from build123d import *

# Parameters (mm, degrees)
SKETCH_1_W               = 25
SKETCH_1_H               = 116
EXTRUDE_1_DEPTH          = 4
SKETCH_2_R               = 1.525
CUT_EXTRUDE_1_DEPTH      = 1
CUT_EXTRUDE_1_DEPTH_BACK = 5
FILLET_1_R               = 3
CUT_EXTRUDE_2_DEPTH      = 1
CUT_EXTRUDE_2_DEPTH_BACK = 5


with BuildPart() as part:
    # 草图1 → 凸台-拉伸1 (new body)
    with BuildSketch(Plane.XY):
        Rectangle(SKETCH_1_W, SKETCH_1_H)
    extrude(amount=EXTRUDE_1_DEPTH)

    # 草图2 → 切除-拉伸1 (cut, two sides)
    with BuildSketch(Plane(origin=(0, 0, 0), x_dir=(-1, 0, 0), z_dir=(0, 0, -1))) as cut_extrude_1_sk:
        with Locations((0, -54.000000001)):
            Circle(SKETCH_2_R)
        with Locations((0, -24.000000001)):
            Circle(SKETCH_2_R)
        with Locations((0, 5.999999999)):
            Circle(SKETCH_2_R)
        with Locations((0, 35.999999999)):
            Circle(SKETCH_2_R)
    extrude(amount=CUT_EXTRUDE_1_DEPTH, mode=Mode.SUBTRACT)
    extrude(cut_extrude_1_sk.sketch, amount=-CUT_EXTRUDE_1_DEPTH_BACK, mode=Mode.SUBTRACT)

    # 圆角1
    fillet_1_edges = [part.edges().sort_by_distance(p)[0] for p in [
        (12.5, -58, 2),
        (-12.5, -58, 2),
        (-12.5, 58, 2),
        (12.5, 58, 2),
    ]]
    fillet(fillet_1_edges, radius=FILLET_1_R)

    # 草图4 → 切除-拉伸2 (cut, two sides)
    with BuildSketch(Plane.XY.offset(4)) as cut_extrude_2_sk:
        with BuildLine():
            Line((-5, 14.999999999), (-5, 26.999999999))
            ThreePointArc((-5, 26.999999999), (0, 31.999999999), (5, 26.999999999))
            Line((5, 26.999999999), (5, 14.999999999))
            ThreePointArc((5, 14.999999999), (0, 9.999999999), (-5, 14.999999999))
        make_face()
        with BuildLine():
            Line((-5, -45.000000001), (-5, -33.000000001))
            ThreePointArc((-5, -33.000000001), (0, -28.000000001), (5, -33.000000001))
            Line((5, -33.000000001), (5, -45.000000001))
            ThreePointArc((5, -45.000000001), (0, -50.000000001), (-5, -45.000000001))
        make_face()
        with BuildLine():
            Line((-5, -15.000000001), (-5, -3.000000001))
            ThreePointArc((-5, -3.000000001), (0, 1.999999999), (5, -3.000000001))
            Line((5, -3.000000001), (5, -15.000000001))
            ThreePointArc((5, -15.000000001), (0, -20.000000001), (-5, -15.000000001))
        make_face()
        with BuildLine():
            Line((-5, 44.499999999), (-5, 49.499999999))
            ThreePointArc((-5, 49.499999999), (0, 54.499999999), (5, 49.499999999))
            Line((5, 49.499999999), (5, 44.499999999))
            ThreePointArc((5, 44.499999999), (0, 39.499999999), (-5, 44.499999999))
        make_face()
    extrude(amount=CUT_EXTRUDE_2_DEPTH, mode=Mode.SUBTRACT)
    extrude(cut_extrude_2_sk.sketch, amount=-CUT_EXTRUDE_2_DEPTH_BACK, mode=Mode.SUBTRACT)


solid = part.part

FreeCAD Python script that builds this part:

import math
import FreeCAD as App
import Part
import Sketcher
from FreeCAD import Vector


def edges_at(feature, points):
    """Names of the edges that pass closest to the given points."""
    edges = feature.Shape.Edges
    near = lambda p: min(range(len(edges)), key=lambda i: edges[i].distToShape(Part.Vertex(*p))[0])
    return sorted({f"Edge{near(p) + 1}" for p in points})

doc = App.newDocument("Part")
params = doc.addObject("Spreadsheet::Sheet", "Params")
for row, (alias, value) in enumerate([
    ("sketch1_width", "25 mm"),
    ("sketch1_height", "116 mm"),
    ("pad1_length", "4 mm"),
    ("sketch2_diameter", "3.05 mm"),
    ("fillet_radius", "3 mm"),
    ("sketch3_radius", "5 mm"),
    ("sketch3_height", "12 mm"),
    ("sketch3_height2", "5 mm"),
], start=1):
    params.set(f"A{row}", alias)
    params.set(f"B{row}", "=" + value)
    params.setAlias(f"B{row}", alias)

body = doc.addObject("PartDesign::Body", "Body")

# Sketch on XY plane
sketch1 = doc.addObject("Sketcher::SketchObject", "Sketch")
body.addObject(sketch1)
sketch1.AttachmentSupport = (doc.XY_Plane, [""])
sketch1.MapMode = "FlatFace"
sketch1.addGeometry([
    Part.LineSegment(Vector(-12, 58, 0), Vector(-12, -58, 0)),
    Part.LineSegment(Vector(-12, -58, 0), Vector(12, -58, 0)),
    Part.LineSegment(Vector(12, -58, 0), Vector(12, 58, 0)),
    Part.LineSegment(Vector(12, 58, 0), Vector(-12, 58, 0)),
], False)
sketch1.addConstraint([
    Sketcher.Constraint("Coincident", 0, 2, 1, 1),
    Sketcher.Constraint("Coincident", 1, 2, 2, 1),
    Sketcher.Constraint("Coincident", 2, 2, 3, 1),
    Sketcher.Constraint("Coincident", 3, 2, 0, 1),
    Sketcher.Constraint("Vertical", 0),
    Sketcher.Constraint("Horizontal", 1),
    Sketcher.Constraint("Vertical", 2),
    Sketcher.Constraint("Horizontal", 3),
    Sketcher.Constraint("Symmetric", 0, 2, 2, 2, -1, 1),
    Sketcher.Constraint("DistanceX", 1, 1, 1, 2, 25.0),
    Sketcher.Constraint("DistanceY", 0, 2, 0, 1, 116.0),
])
sketch1.setExpression("Constraints[9]", "Params.sketch1_width")
sketch1.setExpression("Constraints[10]", "Params.sketch1_height")
pad1 = doc.addObject("PartDesign::Pad", "Pad")
body.addObject(pad1)
pad1.Profile = sketch1
pad1.setExpression("Length", "Params.pad1_length")

# Sketch on XY plane
sketch2 = doc.addObject("Sketcher::SketchObject", "Sketch001")
body.addObject(sketch2)
sketch2.AttachmentSupport = (doc.XY_Plane, [""])
sketch2.MapMode = "FlatFace"
sketch2.addGeometry([
    Part.Circle(Vector(0, -54, 0), Vector(0, 0, 1), 1.5),
    Part.Circle(Vector(0, -24, 0), Vector(0, 0, 1), 1.5),
    Part.Circle(Vector(0, 6, 0), Vector(0, 0, 1), 1.5),
    Part.Circle(Vector(0, 36, 0), Vector(0, 0, 1), 1.5),
], False)
sketch2.addConstraint([
    Sketcher.Constraint("Equal", 0, 1),
    Sketcher.Constraint("Equal", 1, 2),
    Sketcher.Constraint("Equal", 2, 3),
    Sketcher.Constraint("PointOnObject", 0, 3, -2),
    Sketcher.Constraint("PointOnObject", 1, 3, -2),
    Sketcher.Constraint("PointOnObject", 2, 3, -2),
    Sketcher.Constraint("PointOnObject", 3, 3, -2),
    Sketcher.Constraint("Diameter", 0, 3.05),
    Sketcher.Constraint("DistanceY", 0, 3, -1, 1, 54.0),
    Sketcher.Constraint("DistanceY", 1, 3, -1, 1, 24.0),
    Sketcher.Constraint("DistanceY", -1, 1, 2, 3, 6.0),
    Sketcher.Constraint("DistanceY", -1, 1, 3, 3, 36.0),
])
sketch2.setExpression("Constraints[7]", "Params.sketch2_diameter")
pocket1 = doc.addObject("PartDesign::Pocket", "Pocket")
body.addObject(pocket1)
pocket1.Profile = sketch2
pocket1.Type = "ThroughAll"
pocket1.Midplane = True
doc.recompute()

fillet = doc.addObject("PartDesign::Fillet", "Fillet")
body.addObject(fillet)
fillet.Base = (pocket1, edges_at(pocket1, [
    (12.5, -58, 2),
    (-12.5, -58, 2),
    (-12.5, 58, 2),
    (12.5, 58, 2),
]))
fillet.setExpression("Radius", "Params.fillet_radius")

# Sketch on XY plane
sketch3 = doc.addObject("Sketcher::SketchObject", "Sketch002")
body.addObject(sketch3)
sketch3.AttachmentSupport = (doc.XY_Plane, [""])
sketch3.MapMode = "FlatFace"
sketch3.AttachmentOffset = App.Placement(Vector(0, 0, 4), App.Rotation())
sketch3.addGeometry([
    Part.LineSegment(Vector(-5, 27, 0), Vector(-5, 15, 0)),  # 0
    Part.ArcOfCircle(Part.Circle(Vector(0, 15, 0), Vector(0, 0, 1), 5), math.radians(180), math.radians(360)),  # 1
    Part.LineSegment(Vector(5, 15, 0), Vector(5, 27, 0)),  # 2
    Part.ArcOfCircle(Part.Circle(Vector(0, 27, 0), Vector(0, 0, 1), 5), math.radians(0), math.radians(180)),  # 3
    Part.LineSegment(Vector(-5, -33, 0), Vector(-5, -45, 0)),  # 4
    Part.ArcOfCircle(Part.Circle(Vector(0, -45, 0), Vector(0, 0, 1), 5), math.radians(180), math.radians(360)),  # 5
    Part.LineSegment(Vector(5, -45, 0), Vector(5, -33, 0)),  # 6
    Part.ArcOfCircle(Part.Circle(Vector(0, -33, 0), Vector(0, 0, 1), 5), math.radians(0), math.radians(180)),  # 7
    Part.LineSegment(Vector(-5, -3, 0), Vector(-5, -15, 0)),  # 8
    Part.ArcOfCircle(Part.Circle(Vector(0, -15, 0), Vector(0, 0, 1), 5), math.radians(180), math.radians(360)),  # 9
    Part.LineSegment(Vector(5, -15, 0), Vector(5, -3, 0)),  # 10
    Part.ArcOfCircle(Part.Circle(Vector(0, -3, 0), Vector(0, 0, 1), 5), math.radians(0), math.radians(180)),  # 11
    Part.LineSegment(Vector(-5, 49, 0), Vector(-5, 44, 0)),  # 12
    Part.ArcOfCircle(Part.Circle(Vector(0, 44, 0), Vector(0, 0, 1), 5), math.radians(180), math.radians(360)),  # 13
    Part.LineSegment(Vector(5, 44, 0), Vector(5, 49, 0)),  # 14
    Part.ArcOfCircle(Part.Circle(Vector(0, 49, 0), Vector(0, 0, 1), 5), math.radians(0), math.radians(180)),  # 15
], False)
sketch3.addConstraint([
    Sketcher.Constraint("Tangent", 0, 2, 1, 1),
    Sketcher.Constraint("Tangent", 1, 2, 2, 1),
    Sketcher.Constraint("Tangent", 2, 2, 3, 1),
    Sketcher.Constraint("Tangent", 3, 2, 0, 1),
    Sketcher.Constraint("Tangent", 4, 2, 5, 1),
    Sketcher.Constraint("Tangent", 5, 2, 6, 1),
    Sketcher.Constraint("Tangent", 6, 2, 7, 1),
    Sketcher.Constraint("Tangent", 7, 2, 4, 1),
    Sketcher.Constraint("Tangent", 8, 2, 9, 1),
    Sketcher.Constraint("Tangent", 9, 2, 10, 1),
    Sketcher.Constraint("Tangent", 10, 2, 11, 1),
    Sketcher.Constraint("Tangent", 11, 2, 8, 1),
    Sketcher.Constraint("Tangent", 12, 2, 13, 1),
    Sketcher.Constraint("Tangent", 13, 2, 14, 1),
    Sketcher.Constraint("Tangent", 14, 2, 15, 1),
    Sketcher.Constraint("Tangent", 15, 2, 12, 1),
    Sketcher.Constraint("Vertical", 0),
    Sketcher.Constraint("Vertical", 2),
    Sketcher.Constraint("Vertical", 4),
    Sketcher.Constraint("Vertical", 6),
    Sketcher.Constraint("Vertical", 8),
    Sketcher.Constraint("Vertical", 10),
    Sketcher.Constraint("Vertical", 12),
    Sketcher.Constraint("Vertical", 14),
    Sketcher.Constraint("Equal", 3, 5),
    Sketcher.Constraint("Equal", 7, 9),
    Sketcher.Constraint("Equal", 11, 13),
    Sketcher.Constraint("Symmetric", 1, 3, 9, 3, -1, 1),
    Sketcher.Constraint("PointOnObject", 1, 3, -2),
    Sketcher.Constraint("PointOnObject", 5, 3, -2),
    Sketcher.Constraint("PointOnObject", 13, 3, -2),
    Sketcher.Constraint("Equal", 2, 4),
    Sketcher.Constraint("Equal", 6, 8),
    Sketcher.Constraint("Radius", 1, 5.0),
    Sketcher.Constraint("DistanceY", 0, 2, 0, 1, 12.0),
    Sketcher.Constraint("DistanceY", 12, 2, 12, 1, 5.0),
    Sketcher.Constraint("DistanceY", -1, 1, 1, 3, 15.0),
    Sketcher.Constraint("DistanceY", 5, 3, -1, 1, 45.0),
    Sketcher.Constraint("DistanceY", -1, 1, 13, 3, 44.5),
])
sketch3.setExpression("Constraints[33]", "Params.sketch3_radius")
sketch3.setExpression("Constraints[34]", "Params.sketch3_height")
sketch3.setExpression("Constraints[35]", "Params.sketch3_height2")
pocket2 = doc.addObject("PartDesign::Pocket", "Pocket001")
body.addObject(pocket2)
pocket2.Profile = sketch3
pocket2.Type = "ThroughAll"
pocket2.Midplane = True

doc.recompute()
